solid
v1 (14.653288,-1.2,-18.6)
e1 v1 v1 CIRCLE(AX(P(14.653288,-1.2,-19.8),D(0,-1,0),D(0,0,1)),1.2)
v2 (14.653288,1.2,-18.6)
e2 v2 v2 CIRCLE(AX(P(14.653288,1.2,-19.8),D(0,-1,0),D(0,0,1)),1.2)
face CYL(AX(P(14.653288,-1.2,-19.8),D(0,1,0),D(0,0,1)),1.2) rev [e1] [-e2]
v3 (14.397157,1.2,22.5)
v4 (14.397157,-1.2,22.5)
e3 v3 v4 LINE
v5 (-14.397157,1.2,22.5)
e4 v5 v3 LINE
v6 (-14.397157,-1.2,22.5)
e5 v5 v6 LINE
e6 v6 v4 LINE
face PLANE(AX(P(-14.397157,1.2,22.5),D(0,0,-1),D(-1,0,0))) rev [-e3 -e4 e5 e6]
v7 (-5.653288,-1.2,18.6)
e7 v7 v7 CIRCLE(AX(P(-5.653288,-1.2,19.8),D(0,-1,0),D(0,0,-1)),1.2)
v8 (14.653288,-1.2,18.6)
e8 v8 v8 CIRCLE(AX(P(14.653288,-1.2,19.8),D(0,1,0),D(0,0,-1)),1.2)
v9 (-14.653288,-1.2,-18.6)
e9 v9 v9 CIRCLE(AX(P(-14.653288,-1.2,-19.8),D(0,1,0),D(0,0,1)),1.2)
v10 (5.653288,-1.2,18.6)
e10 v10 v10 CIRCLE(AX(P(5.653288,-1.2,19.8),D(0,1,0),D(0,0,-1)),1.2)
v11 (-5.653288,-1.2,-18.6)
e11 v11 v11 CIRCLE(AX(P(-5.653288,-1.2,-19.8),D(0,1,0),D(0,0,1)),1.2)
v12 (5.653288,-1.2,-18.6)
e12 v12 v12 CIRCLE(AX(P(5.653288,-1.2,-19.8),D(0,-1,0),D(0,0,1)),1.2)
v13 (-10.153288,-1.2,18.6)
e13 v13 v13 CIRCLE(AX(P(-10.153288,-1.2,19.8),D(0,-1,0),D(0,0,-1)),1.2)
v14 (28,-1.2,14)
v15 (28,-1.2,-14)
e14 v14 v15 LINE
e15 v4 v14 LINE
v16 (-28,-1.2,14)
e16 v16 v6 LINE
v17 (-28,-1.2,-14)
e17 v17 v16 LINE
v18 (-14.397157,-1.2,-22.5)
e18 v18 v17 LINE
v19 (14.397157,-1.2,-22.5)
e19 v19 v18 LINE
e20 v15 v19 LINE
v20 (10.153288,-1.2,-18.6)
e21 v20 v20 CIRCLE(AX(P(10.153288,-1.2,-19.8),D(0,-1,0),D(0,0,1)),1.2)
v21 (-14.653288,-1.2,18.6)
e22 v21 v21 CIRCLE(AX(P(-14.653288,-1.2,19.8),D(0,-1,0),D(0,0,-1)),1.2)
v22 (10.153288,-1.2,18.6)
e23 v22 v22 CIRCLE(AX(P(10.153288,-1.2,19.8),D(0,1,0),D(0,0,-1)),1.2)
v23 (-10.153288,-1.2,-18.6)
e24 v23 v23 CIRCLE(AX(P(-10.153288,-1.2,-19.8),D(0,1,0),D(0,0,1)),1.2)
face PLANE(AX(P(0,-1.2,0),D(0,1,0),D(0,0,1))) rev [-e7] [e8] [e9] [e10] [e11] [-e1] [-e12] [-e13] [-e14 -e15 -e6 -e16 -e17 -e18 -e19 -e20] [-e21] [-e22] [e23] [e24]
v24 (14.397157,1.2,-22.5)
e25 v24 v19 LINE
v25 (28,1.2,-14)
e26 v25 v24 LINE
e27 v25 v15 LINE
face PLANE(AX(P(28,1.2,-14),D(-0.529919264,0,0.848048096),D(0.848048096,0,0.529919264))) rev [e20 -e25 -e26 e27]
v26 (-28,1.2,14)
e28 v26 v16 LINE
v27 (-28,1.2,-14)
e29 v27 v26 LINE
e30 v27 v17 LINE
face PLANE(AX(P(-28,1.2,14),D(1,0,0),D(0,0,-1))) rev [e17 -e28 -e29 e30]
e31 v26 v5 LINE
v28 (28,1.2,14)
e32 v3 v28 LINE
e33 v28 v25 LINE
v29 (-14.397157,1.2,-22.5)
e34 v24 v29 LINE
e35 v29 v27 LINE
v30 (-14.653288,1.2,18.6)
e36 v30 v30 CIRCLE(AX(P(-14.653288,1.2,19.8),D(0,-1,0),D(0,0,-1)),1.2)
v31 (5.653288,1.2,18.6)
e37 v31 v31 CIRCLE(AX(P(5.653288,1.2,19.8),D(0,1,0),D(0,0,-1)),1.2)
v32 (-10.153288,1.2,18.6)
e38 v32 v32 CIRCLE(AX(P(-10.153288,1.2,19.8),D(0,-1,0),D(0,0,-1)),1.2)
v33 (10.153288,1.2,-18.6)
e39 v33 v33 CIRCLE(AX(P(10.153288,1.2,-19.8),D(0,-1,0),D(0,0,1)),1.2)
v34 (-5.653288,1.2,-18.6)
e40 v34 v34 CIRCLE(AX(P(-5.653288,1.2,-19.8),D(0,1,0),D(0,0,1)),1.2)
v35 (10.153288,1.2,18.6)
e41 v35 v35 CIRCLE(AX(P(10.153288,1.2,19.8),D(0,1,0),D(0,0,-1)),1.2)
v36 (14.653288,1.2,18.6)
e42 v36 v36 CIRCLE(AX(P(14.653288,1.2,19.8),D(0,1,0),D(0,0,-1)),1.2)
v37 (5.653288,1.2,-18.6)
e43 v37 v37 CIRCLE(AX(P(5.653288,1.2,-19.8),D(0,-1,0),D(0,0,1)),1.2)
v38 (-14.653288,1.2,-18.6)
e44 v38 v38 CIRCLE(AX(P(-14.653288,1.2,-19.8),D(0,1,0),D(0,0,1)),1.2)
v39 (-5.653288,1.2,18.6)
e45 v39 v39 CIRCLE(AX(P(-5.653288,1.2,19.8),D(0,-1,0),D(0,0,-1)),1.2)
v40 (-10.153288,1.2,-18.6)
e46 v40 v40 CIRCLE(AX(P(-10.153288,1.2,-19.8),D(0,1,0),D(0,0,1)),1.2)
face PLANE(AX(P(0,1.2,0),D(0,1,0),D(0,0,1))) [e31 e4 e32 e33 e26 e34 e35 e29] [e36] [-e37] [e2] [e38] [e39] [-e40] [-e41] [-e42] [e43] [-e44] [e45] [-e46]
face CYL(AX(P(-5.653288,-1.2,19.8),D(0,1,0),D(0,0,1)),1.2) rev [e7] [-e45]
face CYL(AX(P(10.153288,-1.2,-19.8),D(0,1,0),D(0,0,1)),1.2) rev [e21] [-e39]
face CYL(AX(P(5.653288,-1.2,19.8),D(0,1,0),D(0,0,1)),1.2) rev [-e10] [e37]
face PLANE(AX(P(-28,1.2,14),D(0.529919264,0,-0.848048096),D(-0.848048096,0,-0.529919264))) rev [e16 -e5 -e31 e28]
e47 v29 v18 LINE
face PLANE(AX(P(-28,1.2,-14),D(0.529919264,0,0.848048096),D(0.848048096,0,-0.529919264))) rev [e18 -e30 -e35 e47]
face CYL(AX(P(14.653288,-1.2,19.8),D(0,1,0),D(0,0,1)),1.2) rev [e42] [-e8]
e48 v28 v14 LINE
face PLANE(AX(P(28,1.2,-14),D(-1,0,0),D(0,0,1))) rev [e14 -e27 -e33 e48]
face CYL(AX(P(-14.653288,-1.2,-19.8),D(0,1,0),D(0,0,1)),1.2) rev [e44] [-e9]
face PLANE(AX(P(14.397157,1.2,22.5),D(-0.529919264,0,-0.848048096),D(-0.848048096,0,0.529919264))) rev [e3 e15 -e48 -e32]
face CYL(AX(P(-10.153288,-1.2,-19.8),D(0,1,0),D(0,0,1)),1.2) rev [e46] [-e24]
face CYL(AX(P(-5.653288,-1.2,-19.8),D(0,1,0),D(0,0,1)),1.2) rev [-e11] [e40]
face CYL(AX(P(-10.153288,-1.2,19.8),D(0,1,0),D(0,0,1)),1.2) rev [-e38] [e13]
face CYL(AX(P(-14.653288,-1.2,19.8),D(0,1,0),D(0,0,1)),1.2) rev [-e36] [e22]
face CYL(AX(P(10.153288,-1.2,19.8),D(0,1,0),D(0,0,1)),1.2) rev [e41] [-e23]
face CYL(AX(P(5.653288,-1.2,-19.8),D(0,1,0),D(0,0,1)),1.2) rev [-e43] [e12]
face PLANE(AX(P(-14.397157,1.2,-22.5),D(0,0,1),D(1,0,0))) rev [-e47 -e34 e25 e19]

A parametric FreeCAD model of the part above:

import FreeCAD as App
import Part
import Sketcher
from FreeCAD import Vector
Q = App.Units.Quantity


def add_polygon(sketch, points):
    """Adds a closed chain of lines whose ends are joined by coincident constraints."""
    first, n = sketch.GeometryCount, len(points)
    for a, b in zip(points, points[1:] + points[:1]):
        sketch.addGeometry(Part.LineSegment(App.Vector(*a, 0), App.Vector(*b, 0)), False)
    for i in range(n):
        sketch.addConstraint(Sketcher.Constraint("Coincident", first + i, 2, first + (i + 1) % n, 1))

doc = App.newDocument("Part")
params = doc.addObject("Spreadsheet::Sheet", "Params")
for row, (alias, value) in enumerate([
    ("sketch1_height", "28 mm"),
    ("pad1_length", "2.4 mm"),
    ("sketch2_diameter", "2.4 mm"),
    ("sketch3_diameter", "2.4 mm"),
], start=1):
    params.set(f"A{row}", alias)
    params.set(f"B{row}", "=" + value)
    params.setAlias(f"B{row}", alias)

body = doc.addObject("PartDesign::Body", "Body")

# Sketch on XZ plane
sketch1 = doc.addObject("Sketcher::SketchObject", "Sketch")
body.addObject(sketch1)
sketch1.AttachmentSupport = (doc.XZ_Plane, [""])
sketch1.MapMode = "FlatFace"
add_polygon(sketch1, [(-28, -14), (-28, 14), (-14, 22), (14, 22), (28, 14), (28, -14), (14, -22), (-14, -22)])  # lines 0-7
sketch1.addConstraint(Sketcher.Constraint("Vertical", 0))
sketch1.addConstraint(Sketcher.Constraint("Horizontal", 2))
sketch1.addConstraint(Sketcher.Constraint("Vertical", 4))
sketch1.addConstraint(Sketcher.Constraint("Horizontal", 6))
sketch1.addConstraint(Sketcher.Constraint("Symmetric", 0, 2, 4, 2, -1, 1))
sketch1.addConstraint(Sketcher.Constraint("Symmetric", 1, 2, 5, 2, -1, 1))
sketch1.addConstraint(Sketcher.Constraint("Parallel", 3, 7))
sketch1.addConstraint(Sketcher.Constraint("Horizontal", 0, 2, 3, 2))
sketch1.addConstraint(Sketcher.Constraint("Horizontal", 4, 2, 7, 2))
sketch1.addConstraint(Sketcher.Constraint("Vertical", 2, 2, 5, 2))
sketch1.addConstraint(Sketcher.Constraint("DistanceY", 0, 1, 0, 2, Q("28 mm")))
sketch1.addConstraint(Sketcher.Constraint("Angle", 1, Q("32 deg")))
sketch1.addConstraint(Sketcher.Constraint("DistanceX", 0, 2, -1, 1, Q("28 mm")))
sketch1.addConstraint(Sketcher.Constraint("DistanceY", 5, 2, 2, 2, Q("45 mm")))
sketch1.setExpression("Constraints[18]", "Params.sketch1_height")
pad1 = doc.addObject("PartDesign::Pad", "Pad")
body.addObject(pad1)
pad1.Profile = sketch1
pad1.setExpression("Length", "Params.pad1_length")
pad1.Midplane = True

# Sketch on XZ plane
sketch2 = doc.addObject("Sketcher::SketchObject", "Sketch001")
body.addObject(sketch2)
sketch2.AttachmentSupport = (doc.XZ_Plane, [""])
sketch2.MapMode = "FlatFace"
sketch2.AttachmentOffset = App.Placement(Vector(0, 0, -1.2), App.Rotation())
sketch2.addGeometry(Part.Circle(Vector(-14.7, -19.8, 0), Vector(0, 0, 1), 1.2), False)
sketch2.addGeometry(Part.Circle(Vector(-10.2, -19.8, 0), Vector(0, 0, 1), 1.2), False)
sketch2.addGeometry(Part.Circle(Vector(-5.7, -19.8, 0), Vector(0, 0, 1), 1.2), False)
sketch2.addConstraint(Sketcher.Constraint("Equal", 0, 1))
sketch2.addConstraint(Sketcher.Constraint("Equal", 1, 2))
sketch2.addConstraint(Sketcher.Constraint("Horizontal", 0, 3, 1, 3))
sketch2.addConstraint(Sketcher.Constraint("Horizontal", 1, 3, 2, 3))
sketch2.addConstraint(Sketcher.Constraint("Diameter", 0, Q("2.4 mm")))
sketch2.addConstraint(Sketcher.Constraint("DistanceX", 0, 3, 2, 3, Q("9 mm")))
sketch2.addConstraint(Sketcher.Constraint("DistanceY", 0, 3, -1, 1, Q("19.8 mm")))
sketch2.addConstraint(Sketcher.Constraint("DistanceX", 0, 3, 1, 3, Q("4.5 mm")))
sketch2.addConstraint(Sketcher.Constraint("DistanceX", 0, 3, -1, 1, Q("14.653288 mm")))
sketch2.setExpression("Constraints[4]", "Params.sketch2_diameter")
pocket1 = doc.addObject("PartDesign::Pocket", "Pocket")
body.addObject(pocket1)
pocket1.Profile = sketch2
pocket1.Type = "ThroughAll"
pocket1.Reversed = True
doc.recompute()

mirrored = doc.addObject("PartDesign::Mirrored", "Mirrored")
body.addObject(mirrored)
mirrored.Originals = [pocket1]
mirrored.MirrorPlane = (doc.YZ_Plane, [""])
body.Tip = mirrored
doc.recompute()

mirrored2 = doc.addObject("PartDesign::Mirrored", "Mirrored001")
body.addObject(mirrored2)
mirrored2.Originals = [pocket1]
mirrored2.MirrorPlane = (doc.XY_Plane, [""])
body.Tip = mirrored2

# Sketch on XZ plane
sketch3 = doc.addObject("Sketcher::SketchObject", "Sketch002")
body.addObject(sketch3)
sketch3.AttachmentSupport = (doc.XZ_Plane, [""])
sketch3.MapMode = "FlatFace"
sketch3.AttachmentOffset = App.Placement(Vector(0, 0, -1.2), App.Rotation())
sketch3.addGeometry(Part.Circle(Vector(14.7, 19.8, 0), Vector(0, 0, 1), 1.2), False)
sketch3.addGeometry(Part.Circle(Vector(10.2, 19.8, 0), Vector(0, 0, 1), 1.2), False)
sketch3.addGeometry(Part.Circle(Vector(5.7, 19.8, 0), Vector(0, 0, 1), 1.2), False)
sketch3.addConstraint(Sketcher.Constraint("Equal", 0, 1))
sketch3.addConstraint(Sketcher.Constraint("Equal", 1, 2))
sketch3.addConstraint(Sketcher.Constraint("Horizontal", 0, 3, 1, 3))
sketch3.addConstraint(Sketcher.Constraint("Horizontal", 1, 3, 2, 3))
sketch3.addConstraint(Sketcher.Constraint("Diameter", 0, Q("2.4 mm")))
sketch3.addConstraint(Sketcher.Constraint("DistanceX", 2, 3, 0, 3, Q("9 mm")))
sketch3.addConstraint(Sketcher.Constraint("DistanceY", -1, 1, 0, 3, Q("19.8 mm")))
sketch3.addConstraint(Sketcher.Constraint("DistanceX", 1, 3, 0, 3, Q("4.5 mm")))
sketch3.addConstraint(Sketcher.Constraint("DistanceX", -1, 1, 0, 3, Q("14.653288 mm")))
sketch3.setExpression("Constraints[4]", "Params.sketch3_diameter")
pocket2 = doc.addObject("PartDesign::Pocket", "Pocket001")
body.addObject(pocket2)
pocket2.Profile = sketch3
pocket2.Type = "ThroughAll"
pocket2.Reversed = True

doc.recompute()
